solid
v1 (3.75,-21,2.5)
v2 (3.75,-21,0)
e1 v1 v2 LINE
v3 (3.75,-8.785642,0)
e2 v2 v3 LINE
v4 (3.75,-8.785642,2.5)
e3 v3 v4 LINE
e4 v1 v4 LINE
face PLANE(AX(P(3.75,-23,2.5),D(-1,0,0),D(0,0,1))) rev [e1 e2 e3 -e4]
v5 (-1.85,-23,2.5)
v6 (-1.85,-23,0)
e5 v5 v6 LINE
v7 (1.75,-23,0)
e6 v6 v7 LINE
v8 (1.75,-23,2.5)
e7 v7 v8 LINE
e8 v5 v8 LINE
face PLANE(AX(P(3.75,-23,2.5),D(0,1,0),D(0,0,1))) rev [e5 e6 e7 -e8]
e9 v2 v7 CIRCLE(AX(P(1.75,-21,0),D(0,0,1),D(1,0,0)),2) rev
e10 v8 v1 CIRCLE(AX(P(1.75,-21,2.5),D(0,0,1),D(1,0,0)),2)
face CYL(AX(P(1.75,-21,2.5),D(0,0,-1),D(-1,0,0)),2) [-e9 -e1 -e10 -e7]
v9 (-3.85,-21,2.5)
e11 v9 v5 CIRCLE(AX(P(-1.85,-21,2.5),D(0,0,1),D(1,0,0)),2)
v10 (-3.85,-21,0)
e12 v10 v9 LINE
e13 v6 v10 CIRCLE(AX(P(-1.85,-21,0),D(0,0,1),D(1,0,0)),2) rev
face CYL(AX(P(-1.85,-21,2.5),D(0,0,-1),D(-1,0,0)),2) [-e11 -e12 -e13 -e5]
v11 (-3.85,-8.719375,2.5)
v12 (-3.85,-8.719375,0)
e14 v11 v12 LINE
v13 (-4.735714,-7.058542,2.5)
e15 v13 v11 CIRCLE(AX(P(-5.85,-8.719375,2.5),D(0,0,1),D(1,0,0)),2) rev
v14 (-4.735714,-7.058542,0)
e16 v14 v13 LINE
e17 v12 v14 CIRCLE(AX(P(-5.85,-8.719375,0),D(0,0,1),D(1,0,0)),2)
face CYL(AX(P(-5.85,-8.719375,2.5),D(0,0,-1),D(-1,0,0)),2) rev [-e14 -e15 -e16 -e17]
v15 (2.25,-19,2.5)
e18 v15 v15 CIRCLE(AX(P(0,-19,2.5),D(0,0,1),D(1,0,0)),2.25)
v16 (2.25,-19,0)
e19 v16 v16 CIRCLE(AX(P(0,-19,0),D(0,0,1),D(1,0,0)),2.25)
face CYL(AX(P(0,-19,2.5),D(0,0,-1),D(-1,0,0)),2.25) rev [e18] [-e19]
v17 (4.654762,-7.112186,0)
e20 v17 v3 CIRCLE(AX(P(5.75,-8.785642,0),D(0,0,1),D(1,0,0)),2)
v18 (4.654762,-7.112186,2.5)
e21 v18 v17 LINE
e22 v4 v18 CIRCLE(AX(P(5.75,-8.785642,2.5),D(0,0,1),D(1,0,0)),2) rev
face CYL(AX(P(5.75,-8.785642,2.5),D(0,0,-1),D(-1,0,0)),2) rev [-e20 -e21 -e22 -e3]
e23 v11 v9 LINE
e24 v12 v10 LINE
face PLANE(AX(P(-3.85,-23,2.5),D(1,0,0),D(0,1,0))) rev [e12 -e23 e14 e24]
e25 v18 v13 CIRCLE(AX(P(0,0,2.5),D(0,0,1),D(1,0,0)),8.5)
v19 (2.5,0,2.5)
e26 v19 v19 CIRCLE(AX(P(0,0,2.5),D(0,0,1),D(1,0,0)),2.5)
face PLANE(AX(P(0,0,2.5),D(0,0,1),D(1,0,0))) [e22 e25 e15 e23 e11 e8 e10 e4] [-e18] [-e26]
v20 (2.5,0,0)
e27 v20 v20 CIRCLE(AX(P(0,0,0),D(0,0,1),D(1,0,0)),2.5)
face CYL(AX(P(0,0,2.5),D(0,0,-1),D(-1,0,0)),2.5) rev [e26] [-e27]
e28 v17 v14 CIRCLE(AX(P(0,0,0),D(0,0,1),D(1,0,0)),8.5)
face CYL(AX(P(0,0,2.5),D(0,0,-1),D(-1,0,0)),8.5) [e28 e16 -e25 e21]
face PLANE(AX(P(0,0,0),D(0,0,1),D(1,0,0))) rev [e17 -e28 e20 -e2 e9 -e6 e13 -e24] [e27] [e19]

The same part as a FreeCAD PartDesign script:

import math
import FreeCAD as App
import Part
import Sketcher

V = App.Vector


def edges_at(feature, points):
    """Names of the edges that pass closest to the given points."""
    edges = feature.Shape.Edges
    near = lambda p: min(range(len(edges)), key=lambda i: edges[i].distToShape(Part.Vertex(*p))[0])
    return sorted({f"Edge{near(p) + 1}" for p in points})

doc = App.newDocument("Part")
body = doc.addObject("PartDesign::Body", "Body")

sketch1 = doc.addObject("Sketcher::SketchObject", "Sketch")
body.addObject(sketch1)
sketch1.AttachmentSupport = (doc.XY_Plane, [""])
sketch1.MapMode = "FlatFace"
sketch1.addGeometry(Part.LineSegment(V(-3.9, -7.6, 0), V(-3.9, -23, 0)), False)
sketch1.addGeometry(Part.LineSegment(V(-3.9, -23, 0), V(3.8, -23, 0)), False)
sketch1.addGeometry(Part.LineSegment(V(3.8, -23, 0), V(3.8, -7.6, 0)), False)
sketch1.addGeometry(Part.ArcOfCircle(Part.Circle(V(0, 0, 0), V(0, 0, 1), 8.5), math.radians(-64), math.radians(243)), False)
sketch1.addGeometry(Part.Circle(V(0, -19, 0), V(0, 0, 1), 2.2), False)
sketch1.addGeometry(Part.Circle(V(0, 0, 0), V(0, 0, 1), 2.5), False)
sketch1.addConstraint(Sketcher.Constraint("Coincident", 0, 2, 1, 1))
sketch1.addConstraint(Sketcher.Constraint("Coincident", 1, 2, 2, 1))
sketch1.addConstraint(Sketcher.Constraint("Coincident", 2, 2, 3, 1))
sketch1.addConstraint(Sketcher.Constraint("Coincident", 3, 2, 0, 1))
sketch1.addConstraint(Sketcher.Constraint("Vertical", 0))
sketch1.addConstraint(Sketcher.Constraint("Horizontal", 1))
sketch1.addConstraint(Sketcher.Constraint("Vertical", 2))
sketch1.addConstraint(Sketcher.Constraint("Coincident", 3, 3, -1, 1))
sketch1.addConstraint(Sketcher.Constraint("Coincident", 5, 3, -1, 1))
sketch1.addConstraint(Sketcher.Constraint("PointOnObject", 4, 3, -2))
sketch1.addConstraint(Sketcher.Constraint("Diameter", 5, 5.0))
sketch1.addConstraint(Sketcher.Constraint("Diameter", 4, 4.5))
sketch1.addConstraint(Sketcher.Constraint("Radius", 3, 8.5))
sketch1.addConstraint(Sketcher.Constraint("DistanceX", 1, 1, 1, 2, 7.6))
sketch1.addConstraint(Sketcher.Constraint("DistanceY", 4, 3, -1, 1, 19.0))
sketch1.addConstraint(Sketcher.Constraint("DistanceY", 0, 2, -1, 1, 23.0))
sketch1.addConstraint(Sketcher.Constraint("DistanceX", 0, 2, -1, 1, 3.85))
pad1 = doc.addObject("PartDesign::Pad", "Pad")
body.addObject(pad1)
pad1.Profile = sketch1
pad1.Length = 2.5
doc.recompute()

fillet = doc.addObject("PartDesign::Fillet", "Fillet")
body.addObject(fillet)
fillet.Base = (pad1, edges_at(pad1, [
    (-3.85, -23, 1.25),
    (-3.85, -7.578, 1.25),
    (3.75, -7.628, 1.25),
    (3.75, -23, 1.25),
]))
fillet.Radius = 2

doc.recompute()
